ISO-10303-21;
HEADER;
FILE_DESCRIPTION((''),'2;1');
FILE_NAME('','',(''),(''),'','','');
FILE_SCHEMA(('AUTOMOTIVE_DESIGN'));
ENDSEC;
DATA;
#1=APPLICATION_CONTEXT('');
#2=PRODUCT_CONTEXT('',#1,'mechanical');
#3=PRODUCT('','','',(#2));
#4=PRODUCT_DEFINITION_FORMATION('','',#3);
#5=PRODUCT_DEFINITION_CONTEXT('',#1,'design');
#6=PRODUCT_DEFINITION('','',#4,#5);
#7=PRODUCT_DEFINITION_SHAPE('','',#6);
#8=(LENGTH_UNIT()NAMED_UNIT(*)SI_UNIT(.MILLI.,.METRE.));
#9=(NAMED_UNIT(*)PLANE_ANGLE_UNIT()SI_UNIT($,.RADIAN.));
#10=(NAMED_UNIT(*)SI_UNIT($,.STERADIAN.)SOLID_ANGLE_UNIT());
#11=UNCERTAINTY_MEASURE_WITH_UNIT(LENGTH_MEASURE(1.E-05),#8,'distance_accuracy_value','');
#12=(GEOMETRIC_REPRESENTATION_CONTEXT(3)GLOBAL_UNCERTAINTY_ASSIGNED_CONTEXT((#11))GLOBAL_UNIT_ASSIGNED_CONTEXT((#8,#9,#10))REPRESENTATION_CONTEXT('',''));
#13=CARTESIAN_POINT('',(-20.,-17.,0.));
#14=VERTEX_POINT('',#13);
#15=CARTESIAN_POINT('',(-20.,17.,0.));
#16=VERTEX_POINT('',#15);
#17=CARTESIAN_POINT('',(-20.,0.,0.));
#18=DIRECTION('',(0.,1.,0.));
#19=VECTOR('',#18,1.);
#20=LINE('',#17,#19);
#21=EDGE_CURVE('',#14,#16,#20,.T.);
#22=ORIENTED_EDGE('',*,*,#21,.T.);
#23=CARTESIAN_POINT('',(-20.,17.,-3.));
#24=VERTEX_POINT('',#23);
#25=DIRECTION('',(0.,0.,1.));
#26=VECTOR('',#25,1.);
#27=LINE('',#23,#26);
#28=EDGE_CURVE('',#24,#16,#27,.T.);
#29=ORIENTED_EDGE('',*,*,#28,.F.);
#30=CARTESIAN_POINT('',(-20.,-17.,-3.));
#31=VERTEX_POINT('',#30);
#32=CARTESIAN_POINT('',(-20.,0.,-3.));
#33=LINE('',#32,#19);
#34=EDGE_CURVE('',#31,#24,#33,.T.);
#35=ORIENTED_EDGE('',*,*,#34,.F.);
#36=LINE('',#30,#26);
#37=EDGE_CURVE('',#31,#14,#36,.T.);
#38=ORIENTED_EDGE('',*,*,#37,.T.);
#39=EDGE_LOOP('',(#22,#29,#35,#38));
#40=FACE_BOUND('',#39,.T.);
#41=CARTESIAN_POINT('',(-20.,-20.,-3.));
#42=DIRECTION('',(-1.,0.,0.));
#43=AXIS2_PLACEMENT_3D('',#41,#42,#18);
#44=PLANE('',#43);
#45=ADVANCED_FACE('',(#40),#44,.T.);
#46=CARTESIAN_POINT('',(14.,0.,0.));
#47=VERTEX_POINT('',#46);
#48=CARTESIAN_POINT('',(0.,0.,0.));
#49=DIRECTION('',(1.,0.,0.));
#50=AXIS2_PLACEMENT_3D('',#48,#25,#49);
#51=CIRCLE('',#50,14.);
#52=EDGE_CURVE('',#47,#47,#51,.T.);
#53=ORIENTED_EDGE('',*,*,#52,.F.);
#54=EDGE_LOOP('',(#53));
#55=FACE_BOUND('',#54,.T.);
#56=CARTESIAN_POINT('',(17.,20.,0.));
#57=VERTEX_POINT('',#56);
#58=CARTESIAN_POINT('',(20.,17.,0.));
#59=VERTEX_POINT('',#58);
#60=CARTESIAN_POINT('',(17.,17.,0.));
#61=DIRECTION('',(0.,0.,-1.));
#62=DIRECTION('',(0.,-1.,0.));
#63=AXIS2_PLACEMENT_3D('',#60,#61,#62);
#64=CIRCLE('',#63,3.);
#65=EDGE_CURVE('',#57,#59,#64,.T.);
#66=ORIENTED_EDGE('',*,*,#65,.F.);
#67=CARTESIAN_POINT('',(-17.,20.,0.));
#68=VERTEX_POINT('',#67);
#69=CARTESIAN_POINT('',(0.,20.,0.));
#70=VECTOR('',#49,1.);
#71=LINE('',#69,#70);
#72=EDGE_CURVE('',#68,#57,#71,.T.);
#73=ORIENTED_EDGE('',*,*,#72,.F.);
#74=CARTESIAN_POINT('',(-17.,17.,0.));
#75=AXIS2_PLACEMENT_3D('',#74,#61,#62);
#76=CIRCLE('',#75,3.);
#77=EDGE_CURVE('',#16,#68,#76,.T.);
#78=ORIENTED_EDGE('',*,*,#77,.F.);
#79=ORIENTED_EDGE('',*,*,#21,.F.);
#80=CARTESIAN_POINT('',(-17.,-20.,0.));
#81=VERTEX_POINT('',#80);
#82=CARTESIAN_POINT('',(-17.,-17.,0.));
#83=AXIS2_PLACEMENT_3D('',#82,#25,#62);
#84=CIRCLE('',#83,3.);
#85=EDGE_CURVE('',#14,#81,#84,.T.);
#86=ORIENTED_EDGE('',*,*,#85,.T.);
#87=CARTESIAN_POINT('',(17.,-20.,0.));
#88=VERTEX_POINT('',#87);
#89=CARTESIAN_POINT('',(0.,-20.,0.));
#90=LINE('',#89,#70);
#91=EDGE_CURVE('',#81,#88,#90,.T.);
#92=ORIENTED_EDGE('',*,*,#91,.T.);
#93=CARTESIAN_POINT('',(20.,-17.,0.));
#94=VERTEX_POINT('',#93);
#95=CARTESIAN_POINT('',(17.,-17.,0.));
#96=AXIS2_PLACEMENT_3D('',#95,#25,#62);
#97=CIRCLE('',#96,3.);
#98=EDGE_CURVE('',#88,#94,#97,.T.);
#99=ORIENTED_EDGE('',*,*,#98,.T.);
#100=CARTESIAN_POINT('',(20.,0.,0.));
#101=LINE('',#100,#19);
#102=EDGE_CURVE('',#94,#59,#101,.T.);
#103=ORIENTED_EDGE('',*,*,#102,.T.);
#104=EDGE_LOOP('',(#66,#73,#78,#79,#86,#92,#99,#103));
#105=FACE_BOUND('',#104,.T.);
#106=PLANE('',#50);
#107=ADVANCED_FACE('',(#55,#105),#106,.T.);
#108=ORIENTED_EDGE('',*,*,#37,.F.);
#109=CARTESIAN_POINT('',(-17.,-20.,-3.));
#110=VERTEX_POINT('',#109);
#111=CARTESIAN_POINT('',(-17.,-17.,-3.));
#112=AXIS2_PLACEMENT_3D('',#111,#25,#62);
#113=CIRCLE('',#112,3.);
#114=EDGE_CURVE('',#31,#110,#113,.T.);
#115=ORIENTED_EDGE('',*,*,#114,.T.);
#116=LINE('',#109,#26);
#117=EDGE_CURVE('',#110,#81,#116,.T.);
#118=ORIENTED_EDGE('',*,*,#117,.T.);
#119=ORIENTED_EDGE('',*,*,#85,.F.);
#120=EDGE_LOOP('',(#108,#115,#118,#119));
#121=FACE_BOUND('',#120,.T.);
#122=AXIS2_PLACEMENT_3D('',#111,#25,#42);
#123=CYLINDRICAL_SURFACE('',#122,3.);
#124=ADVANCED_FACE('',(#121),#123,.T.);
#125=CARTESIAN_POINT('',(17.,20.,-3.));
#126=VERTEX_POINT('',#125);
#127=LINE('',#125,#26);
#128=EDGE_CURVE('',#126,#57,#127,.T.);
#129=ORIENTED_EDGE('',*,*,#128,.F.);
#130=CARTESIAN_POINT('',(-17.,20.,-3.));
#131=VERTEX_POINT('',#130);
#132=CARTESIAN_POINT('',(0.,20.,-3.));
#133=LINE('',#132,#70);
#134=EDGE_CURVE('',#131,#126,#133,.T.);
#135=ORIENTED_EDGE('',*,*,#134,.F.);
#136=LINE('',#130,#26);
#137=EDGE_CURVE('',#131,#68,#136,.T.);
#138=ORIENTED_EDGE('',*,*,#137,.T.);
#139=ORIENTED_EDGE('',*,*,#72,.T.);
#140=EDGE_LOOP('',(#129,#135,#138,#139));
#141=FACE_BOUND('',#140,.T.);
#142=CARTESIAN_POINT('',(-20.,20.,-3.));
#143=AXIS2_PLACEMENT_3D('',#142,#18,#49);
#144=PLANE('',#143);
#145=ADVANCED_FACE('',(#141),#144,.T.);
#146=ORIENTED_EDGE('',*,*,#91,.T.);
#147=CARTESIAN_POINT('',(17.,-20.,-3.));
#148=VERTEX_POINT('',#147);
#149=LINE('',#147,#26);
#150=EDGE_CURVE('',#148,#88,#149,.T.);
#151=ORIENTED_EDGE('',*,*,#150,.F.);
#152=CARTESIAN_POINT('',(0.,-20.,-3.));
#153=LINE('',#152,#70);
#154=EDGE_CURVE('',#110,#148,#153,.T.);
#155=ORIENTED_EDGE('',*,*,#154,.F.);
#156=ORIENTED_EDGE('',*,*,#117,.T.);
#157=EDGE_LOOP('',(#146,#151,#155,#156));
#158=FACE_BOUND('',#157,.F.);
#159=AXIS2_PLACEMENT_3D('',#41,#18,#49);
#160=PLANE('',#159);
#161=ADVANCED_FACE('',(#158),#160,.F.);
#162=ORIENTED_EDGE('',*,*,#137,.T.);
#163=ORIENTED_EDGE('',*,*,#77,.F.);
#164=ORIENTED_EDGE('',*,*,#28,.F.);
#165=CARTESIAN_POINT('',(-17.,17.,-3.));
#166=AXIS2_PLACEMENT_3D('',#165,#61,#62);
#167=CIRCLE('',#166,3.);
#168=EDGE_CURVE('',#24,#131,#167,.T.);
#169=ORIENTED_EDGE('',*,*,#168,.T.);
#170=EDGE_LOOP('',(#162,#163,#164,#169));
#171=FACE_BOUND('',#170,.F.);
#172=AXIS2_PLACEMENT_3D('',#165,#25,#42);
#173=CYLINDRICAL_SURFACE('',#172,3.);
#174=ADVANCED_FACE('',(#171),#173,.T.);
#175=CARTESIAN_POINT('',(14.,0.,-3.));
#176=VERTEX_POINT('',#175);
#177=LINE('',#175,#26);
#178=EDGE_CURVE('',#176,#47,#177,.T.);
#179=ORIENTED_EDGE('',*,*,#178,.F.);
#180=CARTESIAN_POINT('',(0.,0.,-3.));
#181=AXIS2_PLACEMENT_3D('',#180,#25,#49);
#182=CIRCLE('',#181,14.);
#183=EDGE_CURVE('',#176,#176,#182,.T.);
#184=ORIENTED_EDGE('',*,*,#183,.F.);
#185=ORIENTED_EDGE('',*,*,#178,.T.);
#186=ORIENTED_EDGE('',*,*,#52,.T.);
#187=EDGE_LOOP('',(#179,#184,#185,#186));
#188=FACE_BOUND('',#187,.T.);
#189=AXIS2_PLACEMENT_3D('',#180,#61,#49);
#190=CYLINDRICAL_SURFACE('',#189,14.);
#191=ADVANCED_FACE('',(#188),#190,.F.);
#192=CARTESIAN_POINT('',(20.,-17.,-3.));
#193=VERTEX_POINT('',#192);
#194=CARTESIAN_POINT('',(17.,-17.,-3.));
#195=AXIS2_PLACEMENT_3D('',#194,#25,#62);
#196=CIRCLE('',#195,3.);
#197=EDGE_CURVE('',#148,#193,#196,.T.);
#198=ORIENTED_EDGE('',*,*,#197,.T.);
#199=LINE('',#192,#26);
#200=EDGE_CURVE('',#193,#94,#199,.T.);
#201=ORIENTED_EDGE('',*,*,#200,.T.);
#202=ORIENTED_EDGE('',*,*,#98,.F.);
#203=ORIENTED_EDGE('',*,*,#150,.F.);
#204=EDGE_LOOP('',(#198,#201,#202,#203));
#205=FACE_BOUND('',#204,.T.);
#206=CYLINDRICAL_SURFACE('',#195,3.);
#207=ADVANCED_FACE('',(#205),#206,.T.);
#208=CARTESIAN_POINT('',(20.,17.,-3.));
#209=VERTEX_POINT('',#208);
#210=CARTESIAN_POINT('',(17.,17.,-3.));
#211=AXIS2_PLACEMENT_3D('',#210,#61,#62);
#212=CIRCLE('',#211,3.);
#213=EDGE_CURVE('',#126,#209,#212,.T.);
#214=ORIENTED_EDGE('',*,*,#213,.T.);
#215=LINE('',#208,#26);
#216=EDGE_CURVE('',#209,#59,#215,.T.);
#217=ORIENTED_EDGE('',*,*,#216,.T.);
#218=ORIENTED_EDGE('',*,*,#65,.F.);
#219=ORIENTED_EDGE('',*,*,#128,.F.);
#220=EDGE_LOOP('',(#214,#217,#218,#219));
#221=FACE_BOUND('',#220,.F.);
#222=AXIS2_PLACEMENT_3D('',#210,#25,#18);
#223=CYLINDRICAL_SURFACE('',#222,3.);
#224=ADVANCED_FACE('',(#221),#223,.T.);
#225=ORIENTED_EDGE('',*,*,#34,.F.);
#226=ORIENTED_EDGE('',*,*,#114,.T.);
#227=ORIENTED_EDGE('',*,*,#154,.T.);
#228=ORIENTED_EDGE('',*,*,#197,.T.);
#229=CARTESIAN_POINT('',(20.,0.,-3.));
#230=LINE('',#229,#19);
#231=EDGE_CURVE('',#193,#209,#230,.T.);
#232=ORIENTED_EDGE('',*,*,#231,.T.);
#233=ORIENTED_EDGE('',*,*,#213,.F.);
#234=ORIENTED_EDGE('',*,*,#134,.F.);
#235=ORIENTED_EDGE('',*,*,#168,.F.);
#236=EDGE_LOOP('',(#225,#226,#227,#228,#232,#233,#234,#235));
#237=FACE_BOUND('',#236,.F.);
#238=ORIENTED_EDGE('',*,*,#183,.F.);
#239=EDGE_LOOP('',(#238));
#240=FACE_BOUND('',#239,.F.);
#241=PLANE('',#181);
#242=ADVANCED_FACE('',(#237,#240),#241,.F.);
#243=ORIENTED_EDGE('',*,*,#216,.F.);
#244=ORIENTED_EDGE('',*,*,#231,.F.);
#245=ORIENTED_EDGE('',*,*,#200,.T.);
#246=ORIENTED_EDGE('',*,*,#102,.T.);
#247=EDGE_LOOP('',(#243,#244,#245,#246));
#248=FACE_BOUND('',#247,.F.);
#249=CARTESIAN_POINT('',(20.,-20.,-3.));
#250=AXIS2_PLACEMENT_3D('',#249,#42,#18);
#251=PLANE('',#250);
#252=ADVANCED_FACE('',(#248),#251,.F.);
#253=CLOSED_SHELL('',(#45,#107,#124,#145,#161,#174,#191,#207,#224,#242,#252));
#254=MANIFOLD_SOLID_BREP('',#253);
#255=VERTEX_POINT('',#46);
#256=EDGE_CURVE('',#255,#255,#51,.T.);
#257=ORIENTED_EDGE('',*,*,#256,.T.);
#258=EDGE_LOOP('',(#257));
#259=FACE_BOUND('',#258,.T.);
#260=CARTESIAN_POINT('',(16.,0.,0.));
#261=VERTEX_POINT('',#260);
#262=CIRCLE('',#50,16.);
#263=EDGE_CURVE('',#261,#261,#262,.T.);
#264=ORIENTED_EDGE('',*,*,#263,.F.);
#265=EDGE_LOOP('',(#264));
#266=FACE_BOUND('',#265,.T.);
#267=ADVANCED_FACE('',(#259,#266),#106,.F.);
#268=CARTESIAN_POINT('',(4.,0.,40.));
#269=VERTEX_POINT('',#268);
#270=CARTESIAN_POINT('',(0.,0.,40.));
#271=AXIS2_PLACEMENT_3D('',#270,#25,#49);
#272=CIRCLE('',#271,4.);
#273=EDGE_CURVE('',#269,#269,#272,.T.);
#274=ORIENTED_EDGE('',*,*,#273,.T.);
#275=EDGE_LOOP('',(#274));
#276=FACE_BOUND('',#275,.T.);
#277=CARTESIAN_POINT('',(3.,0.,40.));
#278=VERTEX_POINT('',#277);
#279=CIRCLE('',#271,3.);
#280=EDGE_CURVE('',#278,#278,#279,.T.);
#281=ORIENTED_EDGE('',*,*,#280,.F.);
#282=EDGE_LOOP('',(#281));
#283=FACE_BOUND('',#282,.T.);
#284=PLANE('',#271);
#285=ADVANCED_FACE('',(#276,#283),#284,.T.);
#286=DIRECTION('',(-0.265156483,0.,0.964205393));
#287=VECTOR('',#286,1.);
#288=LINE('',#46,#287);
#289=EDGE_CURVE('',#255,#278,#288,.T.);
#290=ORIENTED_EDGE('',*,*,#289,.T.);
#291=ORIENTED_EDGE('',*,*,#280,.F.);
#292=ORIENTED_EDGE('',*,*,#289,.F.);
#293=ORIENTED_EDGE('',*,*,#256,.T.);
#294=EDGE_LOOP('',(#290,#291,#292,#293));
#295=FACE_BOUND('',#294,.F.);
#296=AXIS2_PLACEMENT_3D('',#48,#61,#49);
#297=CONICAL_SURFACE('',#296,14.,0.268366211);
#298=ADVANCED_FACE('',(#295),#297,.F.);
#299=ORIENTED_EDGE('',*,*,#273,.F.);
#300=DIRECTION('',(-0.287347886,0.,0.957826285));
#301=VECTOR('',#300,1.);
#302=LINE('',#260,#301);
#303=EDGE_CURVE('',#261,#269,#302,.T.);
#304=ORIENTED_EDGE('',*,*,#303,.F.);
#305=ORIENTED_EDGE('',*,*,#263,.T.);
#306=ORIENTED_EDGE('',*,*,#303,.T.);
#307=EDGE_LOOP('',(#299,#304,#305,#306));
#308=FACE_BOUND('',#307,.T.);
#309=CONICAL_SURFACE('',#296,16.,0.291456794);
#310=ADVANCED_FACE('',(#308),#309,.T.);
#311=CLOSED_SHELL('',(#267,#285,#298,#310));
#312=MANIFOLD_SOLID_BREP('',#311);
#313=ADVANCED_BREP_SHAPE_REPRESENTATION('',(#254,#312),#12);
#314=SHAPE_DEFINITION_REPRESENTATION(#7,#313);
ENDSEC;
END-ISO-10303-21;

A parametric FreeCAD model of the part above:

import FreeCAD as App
import Part
import Sketcher
from FreeCAD import Vector
Q = App.Units.Quantity


def edges_at(feature, points):
    """Names of the edges that pass closest to the given points."""
    edges = feature.Shape.Edges
    near = lambda p: min(range(len(edges)), key=lambda i: edges[i].distToShape(Part.Vertex(*p))[0])
    return sorted({f"Edge{near(p) + 1}" for p in points})

doc = App.newDocument("Part")
body = doc.addObject("PartDesign::Body", "Body")

sketch1 = body.newObject("Sketcher::SketchObject", "Sketch")
sketch1.AttachmentSupport = (doc.getObject("XZ_Plane"), [""])
sketch1.MapMode = "FlatFace"
sketch1.addGeometry(Part.LineSegment(Vector(0, 0, 0), Vector(14, 0, 0)), False)
sketch1.addGeometry(Part.LineSegment(Vector(14, 0, 0), Vector(3, 40, 0)), False)
sketch1.addGeometry(Part.LineSegment(Vector(3, 40, 0), Vector(0, 40, 0)), False)
sketch1.addGeometry(Part.LineSegment(Vector(0, 40, 0), Vector(0, 0, 0)), False)
sketch1.addConstraint(Sketcher.Constraint("Coincident", 0, 2, 1, 1))
sketch1.addConstraint(Sketcher.Constraint("Coincident", 1, 2, 2, 1))
sketch1.addConstraint(Sketcher.Constraint("Coincident", 2, 2, 3, 1))
sketch1.addConstraint(Sketcher.Constraint("Coincident", 3, 2, 0, 1))
sketch1.addConstraint(Sketcher.Constraint("Horizontal", 0))
sketch1.addConstraint(Sketcher.Constraint("Horizontal", 2))
sketch1.addConstraint(Sketcher.Constraint("Vertical", 3))
sketch1.addConstraint(Sketcher.Constraint("Coincident", 3, 2, -1, 1))
sketch1.addConstraint(Sketcher.Constraint("DistanceX", 0, 1, 0, 2, Q("14 mm")))
sketch1.addConstraint(Sketcher.Constraint("DistanceX", 2, 2, 2, 1, Q("3 mm")))
sketch1.addConstraint(Sketcher.Constraint("DistanceY", 3, 2, 3, 1, Q("40 mm")))
revolution = body.newObject("PartDesign::Revolution", "Revolution")
revolution.Profile = sketch1
revolution.ReferenceAxis = (sketch1, ["V_Axis"])
revolution.Angle = 360
body2 = doc.addObject("PartDesign::Body", "Body001")

sketch2 = body2.newObject("Sketcher::SketchObject", "Sketch001")
sketch2.AttachmentSupport = (doc.getObject("XZ_Plane001"), [""])
sketch2.MapMode = "FlatFace"
sketch2.addGeometry(Part.LineSegment(Vector(0, 0, 0), Vector(16, 0, 0)), False)
sketch2.addGeometry(Part.LineSegment(Vector(16, 0, 0), Vector(4, 40, 0)), False)
sketch2.addGeometry(Part.LineSegment(Vector(4, 40, 0), Vector(0, 40, 0)), False)
sketch2.addGeometry(Part.LineSegment(Vector(0, 40, 0), Vector(0, 0, 0)), False)
sketch2.addConstraint(Sketcher.Constraint("Coincident", 0, 2, 1, 1))
sketch2.addConstraint(Sketcher.Constraint("Coincident", 1, 2, 2, 1))
sketch2.addConstraint(Sketcher.Constraint("Coincident", 2, 2, 3, 1))
sketch2.addConstraint(Sketcher.Constraint("Coincident", 3, 2, 0, 1))
sketch2.addConstraint(Sketcher.Constraint("Horizontal", 0))
sketch2.addConstraint(Sketcher.Constraint("Horizontal", 2))
sketch2.addConstraint(Sketcher.Constraint("Vertical", 3))
sketch2.addConstraint(Sketcher.Constraint("Coincident", 3, 2, -1, 1))
sketch2.addConstraint(Sketcher.Constraint("DistanceX", 0, 1, 0, 2, Q("16 mm")))
sketch2.addConstraint(Sketcher.Constraint("DistanceX", 2, 2, 2, 1, Q("4 mm")))
sketch2.addConstraint(Sketcher.Constraint("DistanceY", 3, 2, 3, 1, Q("40 mm")))
revolution2 = body2.newObject("PartDesign::Revolution", "Revolution001")
revolution2.Profile = sketch2
revolution2.ReferenceAxis = (sketch2, ["V_Axis"])
revolution2.Angle = 360
doc.recompute()

boolean = body2.newObject("PartDesign::Boolean", "Boolean")
boolean.Type = "Cut"
boolean.addObjects([body])
body3 = doc.addObject("PartDesign::Body", "Body002")

sketch3 = body3.newObject("Sketcher::SketchObject", "Sketch002")
sketch3.AttachmentSupport = (doc.getObject("XY_Plane002"), [""])
sketch3.MapMode = "FlatFace"
sketch3.AttachmentOffset = App.Placement(Vector(0, 0, -3), App.Rotation())
sketch3.addGeometry(Part.Circle(Vector(0, 0, 0), Vector(0, 0, 1), 14), False)
sketch3.addConstraint(Sketcher.Constraint("Coincident", 0, 3, -1, 1))
sketch3.addConstraint(Sketcher.Constraint("Diameter", 0, Q("28 mm")))
pad1 = body3.newObject("PartDesign::Pad", "Pad")
pad1.Profile = sketch3
pad1.Length = 3
body4 = doc.addObject("PartDesign::Body", "Body003")

sketch4 = body4.newObject("Sketcher::SketchObject", "Sketch003")
sketch4.AttachmentSupport = (doc.getObject("XY_Plane003"), [""])
sketch4.MapMode = "FlatFace"
sketch4.AttachmentOffset = App.Placement(Vector(0, 0, -3), App.Rotation())
sketch4.addGeometry(Part.LineSegment(Vector(-20, 20, 0), Vector(-20, -20, 0)), False)
sketch4.addGeometry(Part.LineSegment(Vector(-20, -20, 0), Vector(20, -20, 0)), False)
sketch4.addGeometry(Part.LineSegment(Vector(20, -20, 0), Vector(20, 20, 0)), False)
sketch4.addGeometry(Part.LineSegment(Vector(20, 20, 0), Vector(-20, 20, 0)), False)
sketch4.addConstraint(Sketcher.Constraint("Coincident", 0, 2, 1, 1))
sketch4.addConstraint(Sketcher.Constraint("Coincident", 1, 2, 2, 1))
sketch4.addConstraint(Sketcher.Constraint("Coincident", 2, 2, 3, 1))
sketch4.addConstraint(Sketcher.Constraint("Coincident", 3, 2, 0, 1))
sketch4.addConstraint(Sketcher.Constraint("Vertical", 0))
sketch4.addConstraint(Sketcher.Constraint("Horizontal", 1))
sketch4.addConstraint(Sketcher.Constraint("Vertical", 2))
sketch4.addConstraint(Sketcher.Constraint("Horizontal", 3))
sketch4.addConstraint(Sketcher.Constraint("Symmetric", 0, 2, 2, 2, -1, 1))
sketch4.addConstraint(Sketcher.Constraint("Equal", 3, 0))
sketch4.addConstraint(Sketcher.Constraint("DistanceX", 1, 1, 1, 2, Q("40 mm")))
pad2 = body4.newObject("PartDesign::Pad", "Pad001")
pad2.Profile = sketch4
pad2.Length = 3
doc.recompute()

boolean2 = body4.newObject("PartDesign::Boolean", "Boolean001")
boolean2.Type = "Cut"
boolean2.addObjects([body3])
doc.recompute()

fillet = body4.newObject("PartDesign::Fillet", "Fillet")
fillet.Base = (boolean2, edges_at(boolean2, [
    (-20, -20, -1.5),
    (-20, 20, -1.5),
    (20, -20, -1.5),
    (20, 20, -1.5),
]))
fillet.Radius = 3

doc.recompute()
